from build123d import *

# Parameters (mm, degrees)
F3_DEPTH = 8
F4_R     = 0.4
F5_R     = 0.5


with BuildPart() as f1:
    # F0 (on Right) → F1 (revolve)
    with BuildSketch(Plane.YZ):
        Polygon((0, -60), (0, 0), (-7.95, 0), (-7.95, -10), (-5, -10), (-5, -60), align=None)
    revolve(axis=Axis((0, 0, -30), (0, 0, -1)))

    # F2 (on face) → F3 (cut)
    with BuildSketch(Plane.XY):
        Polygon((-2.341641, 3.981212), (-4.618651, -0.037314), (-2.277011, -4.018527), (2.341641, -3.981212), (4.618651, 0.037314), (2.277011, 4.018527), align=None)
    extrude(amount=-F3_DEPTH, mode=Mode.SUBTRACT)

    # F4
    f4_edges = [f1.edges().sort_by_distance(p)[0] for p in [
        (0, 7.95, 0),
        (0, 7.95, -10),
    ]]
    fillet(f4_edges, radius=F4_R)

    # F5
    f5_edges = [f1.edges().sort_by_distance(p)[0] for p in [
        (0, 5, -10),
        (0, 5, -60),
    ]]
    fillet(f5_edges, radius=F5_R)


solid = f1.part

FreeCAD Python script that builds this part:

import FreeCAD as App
import Part
import Sketcher
Q = App.Units.Quantity


def edges_at(feature, points):
    """Names of the edges that pass closest to the given points."""
    edges = feature.Shape.Edges
    near = lambda p: min(range(len(edges)), key=lambda i: edges[i].distToShape(Part.Vertex(*p))[0])
    return sorted({f"Edge{near(p) + 1}" for p in points})

doc = App.newDocument("Part")
body = doc.addObject("PartDesign::Body", "Body")

sketch1 = doc.addObject("Sketcher::SketchObject", "Sketch")
body.addObject(sketch1)
sketch1.AttachmentSupport = (doc.YZ_Plane, [""])
sketch1.MapMode = "FlatFace"
sketch1.addGeometry(Part.LineSegment(App.Vector(0, -60, 0), App.Vector(0, 0, 0)), False)
sketch1.addGeometry(Part.LineSegment(App.Vector(0, 0, 0), App.Vector(-8, 0, 0)), False)
sketch1.addGeometry(Part.LineSegment(App.Vector(-8, 0, 0), App.Vector(-8, -10, 0)), False)
sketch1.addGeometry(Part.LineSegment(App.Vector(-8, -10, 0), App.Vector(-5, -10, 0)), False)
sketch1.addGeometry(Part.LineSegment(App.Vector(-5, -10, 0), App.Vector(-5, -60, 0)), False)
sketch1.addGeometry(Part.LineSegment(App.Vector(-5, -60, 0), App.Vector(0, -60, 0)), False)
sketch1.addConstraint(Sketcher.Constraint("Coincident", 0, 2, 1, 1))
sketch1.addConstraint(Sketcher.Constraint("Coincident", 1, 2, 2, 1))
sketch1.addConstraint(Sketcher.Constraint("Coincident", 2, 2, 3, 1))
sketch1.addConstraint(Sketcher.Constraint("Coincident", 3, 2, 4, 1))
sketch1.addConstraint(Sketcher.Constraint("Coincident", 4, 2, 5, 1))
sketch1.addConstraint(Sketcher.Constraint("Coincident", 5, 2, 0, 1))
sketch1.addConstraint(Sketcher.Constraint("Vertical", 0))
sketch1.addConstraint(Sketcher.Constraint("Horizontal", 1))
sketch1.addConstraint(Sketcher.Constraint("Vertical", 2))
sketch1.addConstraint(Sketcher.Constraint("Horizontal", 3))
sketch1.addConstraint(Sketcher.Constraint("Vertical", 4))
sketch1.addConstraint(Sketcher.Constraint("Horizontal", 5))
sketch1.addConstraint(Sketcher.Constraint("Coincident", 0, 2, -1, 1))
sketch1.addConstraint(Sketcher.Constraint("DistanceX", 5, 1, 5, 2, Q("5 mm")))
sketch1.addConstraint(Sketcher.Constraint("DistanceY", 0, 1, 0, 2, Q("60 mm")))
sketch1.addConstraint(Sketcher.Constraint("DistanceY", 2, 2, 2, 1, Q("10 mm")))
sketch1.addConstraint(Sketcher.Constraint("DistanceX", 1, 2, 1, 1, Q("7.95 mm")))
revolution = doc.addObject("PartDesign::Revolution", "Revolution")
body.addObject(revolution)
revolution.Profile = sketch1
revolution.ReferenceAxis = (sketch1, ["V_Axis"])
revolution.Angle = 360

sketch2 = doc.addObject("Sketcher::SketchObject", "Sketch001")
body.addObject(sketch2)
sketch2.AttachmentSupport = (doc.XY_Plane, [""])
sketch2.MapMode = "FlatFace"
sketch2.addGeometry(Part.LineSegment(App.Vector(-2.3, 4, 0), App.Vector(-4.6, 0, 0)), False)
sketch2.addGeometry(Part.LineSegment(App.Vector(-4.6, 0, 0), App.Vector(-2.3, -4, 0)), False)
sketch2.addGeometry(Part.LineSegment(App.Vector(-2.3, -4, 0), App.Vector(2.3, -4, 0)), False)
sketch2.addGeometry(Part.LineSegment(App.Vector(2.3, -4, 0), App.Vector(4.6, 0, 0)), False)
sketch2.addGeometry(Part.LineSegment(App.Vector(4.6, 0, 0), App.Vector(2.3, 4, 0)), False)
sketch2.addGeometry(Part.LineSegment(App.Vector(2.3, 4, 0), App.Vector(-2.3, 4, 0)), False)
sketch2.addConstraint(Sketcher.Constraint("Coincident", 0, 2, 1, 1))
sketch2.addConstraint(Sketcher.Constraint("Coincident", 1, 2, 2, 1))
sketch2.addConstraint(Sketcher.Constraint("Coincident", 2, 2, 3, 1))
sketch2.addConstraint(Sketcher.Constraint("Coincident", 3, 2, 4, 1))
sketch2.addConstraint(Sketcher.Constraint("Coincident", 4, 2, 5, 1))
sketch2.addConstraint(Sketcher.Constraint("Coincident", 5, 2, 0, 1))
sketch2.addConstraint(Sketcher.Constraint("Symmetric", 0, 2, 3, 2, -1, 1))
sketch2.addConstraint(Sketcher.Constraint("Symmetric", 1, 2, 4, 2, -1, 1))
sketch2.addConstraint(Sketcher.Constraint("Symmetric", 2, 2, 5, 2, -1, 1))
sketch2.addConstraint(Sketcher.Constraint("Equal", 0, 1))
sketch2.addConstraint(Sketcher.Constraint("Equal", 1, 2))
sketch2.addConstraint(Sketcher.Constraint("Distance", 0, Q("4.618801 mm")))
sketch2.addConstraint(Sketcher.Constraint("DistanceY", 2, 2, 0, 2, Q("3.943898 mm")))
sketch2.addConstraint(Sketcher.Constraint("DistanceX", 0, 2, -1, 1, Q("4.618651 mm")))
sketch2.addConstraint(Sketcher.Constraint("DistanceX", 1, 2, -1, 1, Q("2.277011 mm")))
pocket1 = doc.addObject("PartDesign::Pocket", "Pocket")
body.addObject(pocket1)
pocket1.Profile = sketch2
pocket1.Length = 8
doc.recompute()

fillet = doc.addObject("PartDesign::Fillet", "Fillet")
body.addObject(fillet)
fillet.Base = (pocket1, edges_at(pocket1, [(0, 7.95, 0), (0, 7.95, -10)]))
fillet.Radius = 0.4
doc.recompute()

fillet2 = doc.addObject("PartDesign::Fillet", "Fillet001")
body.addObject(fillet2)
fillet2.Base = (fillet, edges_at(fillet, [(0, 5, -10), (0, 5, -60)]))
fillet2.Radius = 0.5

doc.recompute()
